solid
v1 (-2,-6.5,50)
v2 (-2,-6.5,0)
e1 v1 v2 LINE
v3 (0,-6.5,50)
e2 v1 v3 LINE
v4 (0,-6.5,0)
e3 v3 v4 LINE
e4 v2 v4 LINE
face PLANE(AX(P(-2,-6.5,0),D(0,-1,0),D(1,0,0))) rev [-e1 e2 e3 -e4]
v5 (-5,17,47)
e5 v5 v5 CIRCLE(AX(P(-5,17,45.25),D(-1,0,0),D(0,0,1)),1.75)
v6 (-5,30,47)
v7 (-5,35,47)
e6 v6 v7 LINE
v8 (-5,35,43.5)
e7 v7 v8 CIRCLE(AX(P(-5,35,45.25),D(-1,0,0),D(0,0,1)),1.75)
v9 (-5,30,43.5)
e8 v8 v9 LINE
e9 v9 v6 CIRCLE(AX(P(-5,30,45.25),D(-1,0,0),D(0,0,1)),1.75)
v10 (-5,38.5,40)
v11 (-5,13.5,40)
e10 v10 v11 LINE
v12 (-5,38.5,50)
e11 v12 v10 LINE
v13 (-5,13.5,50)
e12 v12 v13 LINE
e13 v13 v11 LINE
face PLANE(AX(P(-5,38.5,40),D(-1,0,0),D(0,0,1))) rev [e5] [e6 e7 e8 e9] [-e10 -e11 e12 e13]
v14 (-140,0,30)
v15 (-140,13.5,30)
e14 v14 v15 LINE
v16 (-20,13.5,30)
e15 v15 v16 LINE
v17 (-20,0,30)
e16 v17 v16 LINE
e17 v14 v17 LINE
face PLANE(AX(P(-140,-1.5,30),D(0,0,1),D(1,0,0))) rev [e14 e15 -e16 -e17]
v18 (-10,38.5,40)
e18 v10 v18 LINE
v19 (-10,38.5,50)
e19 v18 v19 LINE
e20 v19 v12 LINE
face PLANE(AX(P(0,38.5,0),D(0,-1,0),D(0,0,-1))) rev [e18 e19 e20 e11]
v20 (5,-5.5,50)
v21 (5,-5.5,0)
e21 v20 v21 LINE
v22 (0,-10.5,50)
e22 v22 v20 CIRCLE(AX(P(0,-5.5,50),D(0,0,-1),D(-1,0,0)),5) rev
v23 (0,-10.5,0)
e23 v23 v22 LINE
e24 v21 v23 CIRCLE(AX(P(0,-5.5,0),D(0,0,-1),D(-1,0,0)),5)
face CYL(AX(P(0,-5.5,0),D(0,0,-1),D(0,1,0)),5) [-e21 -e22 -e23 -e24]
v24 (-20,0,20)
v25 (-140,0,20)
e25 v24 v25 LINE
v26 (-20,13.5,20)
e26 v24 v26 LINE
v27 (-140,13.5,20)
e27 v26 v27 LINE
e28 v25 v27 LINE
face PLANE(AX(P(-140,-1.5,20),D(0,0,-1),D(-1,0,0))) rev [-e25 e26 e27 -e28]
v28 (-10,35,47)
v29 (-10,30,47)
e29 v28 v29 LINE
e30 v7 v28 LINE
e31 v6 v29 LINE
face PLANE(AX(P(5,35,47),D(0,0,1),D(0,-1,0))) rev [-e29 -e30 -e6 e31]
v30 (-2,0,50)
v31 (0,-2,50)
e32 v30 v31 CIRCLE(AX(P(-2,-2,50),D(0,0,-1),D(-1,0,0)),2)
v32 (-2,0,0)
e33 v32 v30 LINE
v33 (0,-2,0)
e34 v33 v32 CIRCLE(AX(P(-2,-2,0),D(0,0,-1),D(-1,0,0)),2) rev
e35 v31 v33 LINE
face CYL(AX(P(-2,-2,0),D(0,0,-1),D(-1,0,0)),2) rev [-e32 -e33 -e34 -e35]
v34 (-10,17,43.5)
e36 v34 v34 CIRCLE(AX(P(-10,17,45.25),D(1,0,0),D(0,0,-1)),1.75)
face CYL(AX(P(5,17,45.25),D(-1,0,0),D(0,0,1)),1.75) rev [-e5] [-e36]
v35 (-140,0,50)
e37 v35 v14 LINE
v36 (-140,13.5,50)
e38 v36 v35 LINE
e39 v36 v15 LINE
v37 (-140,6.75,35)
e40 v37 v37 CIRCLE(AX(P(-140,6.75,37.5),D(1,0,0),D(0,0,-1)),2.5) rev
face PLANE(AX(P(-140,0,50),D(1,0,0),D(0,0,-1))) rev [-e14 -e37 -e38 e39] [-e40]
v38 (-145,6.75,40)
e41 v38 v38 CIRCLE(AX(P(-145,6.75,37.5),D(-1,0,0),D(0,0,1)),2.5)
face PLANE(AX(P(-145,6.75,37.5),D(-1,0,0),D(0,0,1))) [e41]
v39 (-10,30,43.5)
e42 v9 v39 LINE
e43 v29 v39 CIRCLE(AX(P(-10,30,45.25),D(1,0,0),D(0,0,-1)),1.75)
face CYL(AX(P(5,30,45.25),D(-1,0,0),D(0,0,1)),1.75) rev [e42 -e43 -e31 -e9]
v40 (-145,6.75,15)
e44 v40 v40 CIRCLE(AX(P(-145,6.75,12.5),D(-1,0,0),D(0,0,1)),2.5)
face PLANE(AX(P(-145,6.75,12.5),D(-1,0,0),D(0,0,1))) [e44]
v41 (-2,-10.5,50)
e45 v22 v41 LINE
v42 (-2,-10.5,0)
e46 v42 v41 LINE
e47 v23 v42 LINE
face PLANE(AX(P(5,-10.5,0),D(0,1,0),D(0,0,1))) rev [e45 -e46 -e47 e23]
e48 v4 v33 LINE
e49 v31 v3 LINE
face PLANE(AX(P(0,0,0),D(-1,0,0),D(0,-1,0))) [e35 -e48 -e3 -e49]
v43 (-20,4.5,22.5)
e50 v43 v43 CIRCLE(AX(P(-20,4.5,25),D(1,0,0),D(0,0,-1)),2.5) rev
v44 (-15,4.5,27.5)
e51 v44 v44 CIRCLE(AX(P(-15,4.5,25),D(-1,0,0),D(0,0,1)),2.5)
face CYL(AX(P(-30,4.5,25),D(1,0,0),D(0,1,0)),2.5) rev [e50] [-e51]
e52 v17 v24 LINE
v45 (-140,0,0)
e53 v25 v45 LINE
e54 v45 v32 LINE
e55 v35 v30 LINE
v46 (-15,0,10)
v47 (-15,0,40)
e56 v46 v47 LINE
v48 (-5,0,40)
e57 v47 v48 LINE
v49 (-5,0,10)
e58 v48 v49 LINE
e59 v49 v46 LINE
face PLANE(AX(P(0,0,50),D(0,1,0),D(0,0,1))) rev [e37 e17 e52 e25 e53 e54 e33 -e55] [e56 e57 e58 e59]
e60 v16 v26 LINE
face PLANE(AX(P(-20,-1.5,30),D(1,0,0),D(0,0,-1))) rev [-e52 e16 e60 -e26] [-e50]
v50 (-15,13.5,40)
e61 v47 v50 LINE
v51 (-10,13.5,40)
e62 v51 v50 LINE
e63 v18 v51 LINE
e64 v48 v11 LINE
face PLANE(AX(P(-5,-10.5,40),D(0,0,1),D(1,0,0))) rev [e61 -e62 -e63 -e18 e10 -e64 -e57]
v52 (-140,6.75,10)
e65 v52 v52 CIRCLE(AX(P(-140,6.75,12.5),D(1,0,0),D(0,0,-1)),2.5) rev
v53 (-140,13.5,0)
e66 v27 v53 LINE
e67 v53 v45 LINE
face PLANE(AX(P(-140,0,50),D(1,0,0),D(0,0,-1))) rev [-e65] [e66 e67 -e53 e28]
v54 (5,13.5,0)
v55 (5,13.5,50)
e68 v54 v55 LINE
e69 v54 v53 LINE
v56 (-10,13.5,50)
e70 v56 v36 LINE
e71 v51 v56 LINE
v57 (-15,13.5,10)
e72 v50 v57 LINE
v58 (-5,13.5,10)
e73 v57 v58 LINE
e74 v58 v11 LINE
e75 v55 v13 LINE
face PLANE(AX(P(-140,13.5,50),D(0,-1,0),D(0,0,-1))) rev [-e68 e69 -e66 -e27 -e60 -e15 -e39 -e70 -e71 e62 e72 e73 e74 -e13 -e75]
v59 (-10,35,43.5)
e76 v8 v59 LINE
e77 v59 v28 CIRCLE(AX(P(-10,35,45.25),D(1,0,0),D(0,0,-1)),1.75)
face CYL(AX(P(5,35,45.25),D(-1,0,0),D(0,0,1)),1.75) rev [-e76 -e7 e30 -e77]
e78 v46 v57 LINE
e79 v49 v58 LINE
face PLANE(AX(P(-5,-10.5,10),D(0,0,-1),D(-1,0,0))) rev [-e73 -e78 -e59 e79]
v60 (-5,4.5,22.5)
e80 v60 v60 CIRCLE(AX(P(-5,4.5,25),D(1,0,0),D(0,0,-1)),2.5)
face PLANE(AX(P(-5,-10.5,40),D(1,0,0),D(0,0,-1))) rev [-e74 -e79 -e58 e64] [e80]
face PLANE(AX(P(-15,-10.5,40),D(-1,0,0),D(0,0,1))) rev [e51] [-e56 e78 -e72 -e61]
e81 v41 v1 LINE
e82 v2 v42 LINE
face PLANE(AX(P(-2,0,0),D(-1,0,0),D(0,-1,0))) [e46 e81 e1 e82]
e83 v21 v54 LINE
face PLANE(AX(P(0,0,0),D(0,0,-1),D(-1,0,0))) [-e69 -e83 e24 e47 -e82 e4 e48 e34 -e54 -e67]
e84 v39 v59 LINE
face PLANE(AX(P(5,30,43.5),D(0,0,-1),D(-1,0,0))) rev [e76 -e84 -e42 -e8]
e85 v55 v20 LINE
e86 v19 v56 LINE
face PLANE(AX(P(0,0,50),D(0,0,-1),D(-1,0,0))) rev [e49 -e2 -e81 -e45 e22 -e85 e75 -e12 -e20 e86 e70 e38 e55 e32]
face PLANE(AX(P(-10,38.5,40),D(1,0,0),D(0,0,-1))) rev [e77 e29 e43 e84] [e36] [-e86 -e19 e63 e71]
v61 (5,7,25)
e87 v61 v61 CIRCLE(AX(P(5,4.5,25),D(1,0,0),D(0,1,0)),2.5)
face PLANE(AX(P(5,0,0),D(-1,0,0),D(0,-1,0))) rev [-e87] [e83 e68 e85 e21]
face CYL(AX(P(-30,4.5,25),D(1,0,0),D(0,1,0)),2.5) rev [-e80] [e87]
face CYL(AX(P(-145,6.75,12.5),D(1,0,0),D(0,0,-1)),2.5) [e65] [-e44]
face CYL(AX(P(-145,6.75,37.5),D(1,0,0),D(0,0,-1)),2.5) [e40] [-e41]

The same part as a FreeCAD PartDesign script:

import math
import FreeCAD as App
import Part
import Sketcher
from FreeCAD import Vector
Q = App.Units.Quantity


def edges_at(feature, points):
    """Names of the edges that pass closest to the given points."""
    edges = feature.Shape.Edges
    near = lambda p: min(range(len(edges)), key=lambda i: edges[i].distToShape(Part.Vertex(*p))[0])
    return sorted({f"Edge{near(p) + 1}" for p in points})


def add_polygon(sketch, points):
    """Adds a closed chain of lines whose ends are joined by coincident constraints."""
    first, n = sketch.GeometryCount, len(points)
    for a, b in zip(points, points[1:] + points[:1]):
        sketch.addGeometry(Part.LineSegment(App.Vector(*a, 0), App.Vector(*b, 0)), False)
    for i in range(n):
        sketch.addConstraint(Sketcher.Constraint("Coincident", first + i, 2, first + (i + 1) % n, 1))

doc = App.newDocument("Part")
params = doc.addObject("Spreadsheet::Sheet", "Params")
for row, (alias, value) in enumerate([
    ("sketch1_width", "140 mm"),
    ("sketch1_height", "13.5 mm"),
    ("pad1_length", "50 mm"),
    ("sketch2_diameter", "5 mm"),
    ("pad2_length", "5 mm"),
    ("sketch3_width", "24 mm"),
    ("sketch3_height", "50 mm"),
    ("pad3_length", "5 mm"),
    ("sketch4_width", "10 mm"),
    ("sketch4_height", "30 mm"),
    ("sketch5_diameter", "5 mm"),
    ("pocket2_length", "35 mm"),
    ("sketch6_width", "4 mm"),
    ("sketch6_height", "50 mm"),
    ("pad4_length", "2 mm"),
    ("sketch7_width", "120 mm"),
    ("sketch7_height", "10 mm"),
    ("pocket3_length", "15 mm"),
    ("sketch8_width", "5 mm"),
    ("sketch8_height", "10 mm"),
    ("pad5_length", "25 mm"),
    ("sketch9_diameter", "3.5 mm"),
    ("sketch9_width", "5 mm"),
    ("fillet_radius", "2 mm"),
    ("fillet2_radius", "5 mm"),
], start=1):
    params.set(f"A{row}", alias)
    params.set(f"B{row}", "=" + value)
    params.setAlias(f"B{row}", alias)

body = doc.addObject("PartDesign::Body", "Body")

# Sketch on XY plane
sketch1 = body.newObject("Sketcher::SketchObject", "Sketch")
sketch1.AttachmentSupport = (doc.getObject("XY_Plane"), [""])
sketch1.MapMode = "FlatFace"
add_polygon(sketch1, [(-140, 14), (-140, 0), (0, 0), (0, 14)])  # lines 0-3
sketch1.addConstraint([
    Sketcher.Constraint("Vertical", 0),
    Sketcher.Constraint("Horizontal", 1),
    Sketcher.Constraint("Vertical", 2),
    Sketcher.Constraint("Horizontal", 3),
    Sketcher.Constraint("Coincident", 1, 2, -1, 1),
    Sketcher.Constraint("DistanceX", 1, 1, 1, 2, Q("140 mm")),
    Sketcher.Constraint("DistanceY", 0, 2, 0, 1, Q("13.5 mm")),
])
sketch1.setExpression("Constraints[9]", "Params.sketch1_width")
sketch1.setExpression("Constraints[10]", "Params.sketch1_height")
pad1 = body.newObject("PartDesign::Pad", "Pad")
pad1.Profile = sketch1
pad1.setExpression("Length", "Params.pad1_length")

# Sketch on YZ plane
sketch2 = body.newObject("Sketcher::SketchObject", "Sketch001")
sketch2.AttachmentSupport = (doc.getObject("YZ_Plane"), [""])
sketch2.MapMode = "FlatFace"
sketch2.AttachmentOffset = App.Placement(Vector(0, 0, -140), App.Rotation())
sketch2.addGeometry([
    Part.Circle(Vector(6.8, 12.5, 0), Vector(0, 0, 1), 2.5),
    Part.Circle(Vector(6.8, 37.5, 0), Vector(0, 0, 1), 2.5),
], False)
sketch2.addConstraint([
    Sketcher.Constraint("Equal", 0, 1),
    Sketcher.Constraint("Vertical", 0, 3, 1, 3),
    Sketcher.Constraint("Diameter", 0, Q("5 mm")),
    Sketcher.Constraint("DistanceY", 0, 3, 1, 3, Q("25 mm")),
    Sketcher.Constraint("DistanceY", -1, 1, 0, 3, Q("12.5 mm")),
    Sketcher.Constraint("DistanceX", -1, 1, 0, 3, Q("6.75 mm")),
])
sketch2.setExpression("Constraints[2]", "Params.sketch2_diameter")
pad2 = body.newObject("PartDesign::Pad", "Pad001")
pad2.Profile = sketch2
pad2.setExpression("Length", "Params.pad2_length")
pad2.Reversed = True

# Sketch on YZ plane
sketch3 = body.newObject("Sketcher::SketchObject", "Sketch002")
sketch3.AttachmentSupport = (doc.getObject("YZ_Plane"), [""])
sketch3.MapMode = "FlatFace"
add_polygon(sketch3, [(14, 50), (-10, 50), (-10, 0), (14, 0)])  # lines 0-3
sketch3.addConstraint([
    Sketcher.Constraint("Horizontal", 0),
    Sketcher.Constraint("Vertical", 1),
    Sketcher.Constraint("Horizontal", 2),
    Sketcher.Constraint("Vertical", 3),
    Sketcher.Constraint("PointOnObject", 1, 2, -1),
    Sketcher.Constraint("DistanceX", 0, 2, 0, 1, Q("24 mm")),
    Sketcher.Constraint("DistanceY", 1, 2, 1, 1, Q("50 mm")),
    Sketcher.Constraint("DistanceX", 0, 2, -1, 1, Q("10.5 mm")),
])
sketch3.setExpression("Constraints[9]", "Params.sketch3_width")
sketch3.setExpression("Constraints[10]", "Params.sketch3_height")
pad3 = body.newObject("PartDesign::Pad", "Pad002")
pad3.Profile = sketch3
pad3.setExpression("Length", "Params.pad3_length")

# Sketch on XZ plane
sketch4 = body.newObject("Sketcher::SketchObject", "Sketch003")
sketch4.AttachmentSupport = (doc.getObject("XZ_Plane"), [""])
sketch4.MapMode = "FlatFace"
sketch4.AttachmentOffset = App.Placement(Vector(0, 0, -13.5), App.Rotation())
add_polygon(sketch4, [(-15, 10), (-15, 40), (-5, 40), (-5, 10)])  # lines 0-3
sketch4.addConstraint([
    Sketcher.Constraint("Vertical", 0),
    Sketcher.Constraint("Horizontal", 1),
    Sketcher.Constraint("Vertical", 2),
    Sketcher.Constraint("Horizontal", 3),
    Sketcher.Constraint("DistanceX", 1, 1, 1, 2, Q("10 mm")),
    Sketcher.Constraint("DistanceY", 0, 1, 0, 2, Q("30 mm")),
    Sketcher.Constraint("DistanceX", 0, 2, -1, 1, Q("15 mm")),
    Sketcher.Constraint("DistanceY", -1, 1, 0, 2, Q("40 mm")),
])
sketch4.setExpression("Constraints[8]", "Params.sketch4_width")
sketch4.setExpression("Constraints[9]", "Params.sketch4_height")
pocket1 = body.newObject("PartDesign::Pocket", "Pocket")
pocket1.Profile = sketch4
pocket1.Type = "ThroughAll"
pocket1.Midplane = True

# Sketch on YZ plane
sketch5 = body.newObject("Sketcher::SketchObject", "Sketch004")
sketch5.AttachmentSupport = (doc.getObject("YZ_Plane"), [""])
sketch5.MapMode = "FlatFace"
sketch5.AttachmentOffset = App.Placement(Vector(0, 0, 5), App.Rotation())
sketch5.addGeometry(Part.Circle(Vector(4.5, 25, 0), Vector(0, 0, 1), 2.5), False)
sketch5.addConstraint([
    Sketcher.Constraint("Diameter", 0, Q("5 mm")),
    Sketcher.Constraint("DistanceY", -1, 1, 0, 3, Q("25 mm")),
    Sketcher.Constraint("DistanceX", -1, 1, 0, 3, Q("4.5 mm")),
])
sketch5.setExpression("Constraints[0]", "Params.sketch5_diameter")
pocket2 = body.newObject("PartDesign::Pocket", "Pocket001")
pocket2.Profile = sketch5
pocket2.setExpression("Length", "Params.pocket2_length")

# Sketch on YZ plane
sketch6 = body.newObject("Sketcher::SketchObject", "Sketch005")
sketch6.AttachmentSupport = (doc.getObject("YZ_Plane"), [""])
sketch6.MapMode = "FlatFace"
add_polygon(sketch6, [(-6.5, 0), (-10.5, 0), (-10.5, 50), (-6.5, 50)])  # lines 0-3
sketch6.addConstraint([
    Sketcher.Constraint("Horizontal", 0),
    Sketcher.Constraint("Vertical", 1),
    Sketcher.Constraint("Horizontal", 2),
    Sketcher.Constraint("Vertical", 3),
    Sketcher.Constraint("PointOnObject", 0, 2, -1),
    Sketcher.Constraint("DistanceX", 0, 2, 0, 1, Q("4 mm")),
    Sketcher.Constraint("DistanceY", 1, 1, 1, 2, Q("50 mm")),
    Sketcher.Constraint("DistanceX", 0, 2, -1, 1, Q("10.5 mm")),
])
sketch6.setExpression("Constraints[9]", "Params.sketch6_width")
sketch6.setExpression("Constraints[10]", "Params.sketch6_height")
pad4 = body.newObject("PartDesign::Pad", "Pad003")
pad4.Profile = sketch6
pad4.setExpression("Length", "Params.pad4_length")
pad4.Reversed = True

# Sketch on XZ plane
sketch7 = body.newObject("Sketcher::SketchObject", "Sketch006")
sketch7.AttachmentSupport = (doc.getObject("XZ_Plane"), [""])
sketch7.MapMode = "FlatFace"
sketch7.AttachmentOffset = App.Placement(Vector(0, 0, -13.5), App.Rotation())
add_polygon(sketch7, [(-140, 20), (-140, 30), (-20, 30), (-20, 20)])  # lines 0-3
sketch7.addConstraint([
    Sketcher.Constraint("Vertical", 0),
    Sketcher.Constraint("Horizontal", 1),
    Sketcher.Constraint("Vertical", 2),
    Sketcher.Constraint("Horizontal", 3),
    Sketcher.Constraint("DistanceX", 1, 1, 1, 2, Q("120 mm")),
    Sketcher.Constraint("DistanceY", 0, 1, 0, 2, Q("10 mm")),
    Sketcher.Constraint("DistanceX", 0, 2, -1, 1, Q("140 mm")),
    Sketcher.Constraint("DistanceY", -1, 1, 0, 2, Q("30 mm")),
])
sketch7.setExpression("Constraints[8]", "Params.sketch7_width")
sketch7.setExpression("Constraints[9]", "Params.sketch7_height")
pocket3 = body.newObject("PartDesign::Pocket", "Pocket002")
pocket3.Profile = sketch7
pocket3.setExpression("Length", "Params.pocket3_length")
pocket3.Reversed = True

# Sketch on XZ plane
sketch8 = body.newObject("Sketcher::SketchObject", "Sketch007")
sketch8.AttachmentSupport = (doc.getObject("XZ_Plane"), [""])
sketch8.MapMode = "FlatFace"
sketch8.AttachmentOffset = App.Placement(Vector(0, 0, -13.5), App.Rotation())
add_polygon(sketch8, [(-10, 40), (-10, 50), (-5, 50), (-5, 40)])  # lines 0-3
sketch8.addConstraint([
    Sketcher.Constraint("Vertical", 0),
    Sketcher.Constraint("Horizontal", 1),
    Sketcher.Constraint("Vertical", 2),
    Sketcher.Constraint("Horizontal", 3),
    Sketcher.Constraint("DistanceX", 1, 1, 1, 2, Q("5 mm")),
    Sketcher.Constraint("DistanceY", 0, 1, 0, 2, Q("10 mm")),
    Sketcher.Constraint("DistanceX", 0, 2, -1, 1, Q("10 mm")),
    Sketcher.Constraint("DistanceY", -1, 1, 0, 2, Q("50 mm")),
])
sketch8.setExpression("Constraints[8]", "Params.sketch8_width")
sketch8.setExpression("Constraints[9]", "Params.sketch8_height")
pad5 = body.newObject("PartDesign::Pad", "Pad004")
pad5.Profile = sketch8
pad5.setExpression("Length", "Params.pad5_length")
pad5.Reversed = True

# Sketch on YZ plane
sketch9 = body.newObject("Sketcher::SketchObject", "Sketch008")
sketch9.AttachmentSupport = (doc.getObject("YZ_Plane"), [""])
sketch9.MapMode = "FlatFace"
sketch9.AttachmentOffset = App.Placement(Vector(0, 0, -10), App.Rotation())
sketch9.addGeometry([
    Part.Circle(Vector(17, 45.2, 0), Vector(0, 0, 1), 1.8),  # 0
    Part.LineSegment(Vector(35, 43.5, 0), Vector(30, 43.5, 0)),  # 1
    Part.ArcOfCircle(Part.Circle(Vector(30, 45.2, 0), Vector(0, 0, 1), 1.8), math.radians(90), math.radians(270)),  # 2
    Part.LineSegment(Vector(30, 47, 0), Vector(35, 47, 0)),  # 3
    Part.ArcOfCircle(Part.Circle(Vector(35, 45.2, 0), Vector(0, 0, 1), 1.8), math.radians(-90), math.radians(90)),  # 4
], False)
sketch9.addConstraint([
    Sketcher.Constraint("Tangent", 1, 2, 2, 2),
    Sketcher.Constraint("Tangent", 2, 1, 3, 1),
    Sketcher.Constraint("Tangent", 3, 2, 4, 2),
    Sketcher.Constraint("Tangent", 4, 1, 1, 1),
    Sketcher.Constraint("Horizontal", 1),
    Sketcher.Constraint("Horizontal", 3),
    Sketcher.Constraint("Equal", 0, 2),
    Sketcher.Constraint("Horizontal", 0, 3, 2, 3),
    Sketcher.Constraint("Diameter", 0, Q("3.5 mm")),
    Sketcher.Constraint("DistanceX", 1, 2, 1, 1, Q("5 mm")),
    Sketcher.Constraint("DistanceX", -1, 1, 0, 3, Q("17 mm")),
    Sketcher.Constraint("DistanceX", -1, 1, 2, 3, Q("30 mm")),
    Sketcher.Constraint("DistanceY", -1, 1, 2, 1, Q("47 mm")),
])
sketch9.setExpression("Constraints[8]", "Params.sketch9_diameter")
sketch9.setExpression("Constraints[9]", "Params.sketch9_width")
pocket4 = body.newObject("PartDesign::Pocket", "Pocket003")
pocket4.Profile = sketch9
pocket4.Type = "ThroughAll"
pocket4.Midplane = True
doc.recompute()

fillet = body.newObject("PartDesign::Fillet", "Fillet")
fillet.Base = (pocket4, edges_at(pocket4, [(0, 0, 25)]))
fillet.setExpression("Radius", "Params.fillet_radius")
doc.recompute()

fillet2 = body.newObject("PartDesign::Fillet", "Fillet001")
fillet2.Base = (fillet, edges_at(fillet, [(5, -10.5, 25)]))
fillet2.setExpression("Radius", "Params.fillet2_radius")

doc.recompute()
